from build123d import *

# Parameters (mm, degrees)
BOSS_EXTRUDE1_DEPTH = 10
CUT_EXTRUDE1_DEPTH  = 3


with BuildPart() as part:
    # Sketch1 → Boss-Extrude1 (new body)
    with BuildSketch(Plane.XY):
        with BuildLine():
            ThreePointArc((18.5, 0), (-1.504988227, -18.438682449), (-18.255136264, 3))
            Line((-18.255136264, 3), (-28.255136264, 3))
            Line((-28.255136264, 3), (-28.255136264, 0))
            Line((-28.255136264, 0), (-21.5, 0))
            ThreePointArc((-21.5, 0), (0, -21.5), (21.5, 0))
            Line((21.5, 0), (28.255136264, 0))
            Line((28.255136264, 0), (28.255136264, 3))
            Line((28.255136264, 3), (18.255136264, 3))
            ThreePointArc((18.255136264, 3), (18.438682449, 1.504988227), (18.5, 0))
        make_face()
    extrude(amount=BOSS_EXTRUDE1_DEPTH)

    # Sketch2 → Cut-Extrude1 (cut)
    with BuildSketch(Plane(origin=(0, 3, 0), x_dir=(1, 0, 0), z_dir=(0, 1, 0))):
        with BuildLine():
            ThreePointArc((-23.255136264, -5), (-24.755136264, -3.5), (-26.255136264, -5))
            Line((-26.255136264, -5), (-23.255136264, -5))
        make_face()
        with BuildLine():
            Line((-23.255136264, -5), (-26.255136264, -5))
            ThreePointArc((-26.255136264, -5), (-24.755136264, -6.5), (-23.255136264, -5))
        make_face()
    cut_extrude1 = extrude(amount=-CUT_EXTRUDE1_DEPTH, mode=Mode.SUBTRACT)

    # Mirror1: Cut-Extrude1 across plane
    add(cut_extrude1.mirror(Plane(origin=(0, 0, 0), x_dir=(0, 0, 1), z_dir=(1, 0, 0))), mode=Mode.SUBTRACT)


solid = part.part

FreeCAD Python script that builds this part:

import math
import FreeCAD as App
import Part
import Sketcher

V = App.Vector

doc = App.newDocument("Part")
body = doc.addObject("PartDesign::Body", "Body")

# Sketch on XY plane
sketch1 = body.newObject("Sketcher::SketchObject", "Sketch")
sketch1.AttachmentSupport = (doc.getObject("XY_Plane"), [""])
sketch1.MapMode = "FlatFace"
sketch1.addGeometry(Part.ArcOfCircle(Part.Circle(V(0, 0, 0), V(0, 0, 1), 18.5), math.radians(171), math.radians(360)), False)
sketch1.addGeometry(Part.LineSegment(V(-18.3, 3, 0), V(-28.3, 3, 0)), False)
sketch1.addGeometry(Part.LineSegment(V(-28.3, 3, 0), V(-28.3, 0, 0)), False)
sketch1.addGeometry(Part.LineSegment(V(-28.3, 0, 0), V(-21.5, 0, 0)), False)
sketch1.addGeometry(Part.ArcOfCircle(Part.Circle(V(0, 0, 0), V(0, 0, 1), 21.5), math.radians(180), math.radians(360)), False)
sketch1.addGeometry(Part.LineSegment(V(21.5, 0, 0), V(28.3, 0, 0)), False)
sketch1.addGeometry(Part.LineSegment(V(28.3, 0, 0), V(28.3, 3, 0)), False)
sketch1.addGeometry(Part.LineSegment(V(28.3, 3, 0), V(18.3, 3, 0)), False)
sketch1.addGeometry(Part.ArcOfCircle(Part.Circle(V(0, 0, 0), V(0, 0, 1), 18.5), math.radians(0), math.radians(9.33)), False)
sketch1.addConstraint(Sketcher.Constraint("Coincident", 0, 1, 1, 1))
sketch1.addConstraint(Sketcher.Constraint("Coincident", 1, 2, 2, 1))
sketch1.addConstraint(Sketcher.Constraint("Coincident", 2, 2, 3, 1))
sketch1.addConstraint(Sketcher.Constraint("Coincident", 3, 2, 4, 1))
sketch1.addConstraint(Sketcher.Constraint("Coincident", 4, 2, 5, 1))
sketch1.addConstraint(Sketcher.Constraint("Coincident", 5, 2, 6, 1))
sketch1.addConstraint(Sketcher.Constraint("Coincident", 6, 2, 7, 1))
sketch1.addConstraint(Sketcher.Constraint("Coincident", 7, 2, 8, 2))
sketch1.addConstraint(Sketcher.Constraint("Tangent", 8, 1, 0, 2))
sketch1.addConstraint(Sketcher.Constraint("Horizontal", 1))
sketch1.addConstraint(Sketcher.Constraint("Vertical", 2))
sketch1.addConstraint(Sketcher.Constraint("Horizontal", 3))
sketch1.addConstraint(Sketcher.Constraint("Horizontal", 5))
sketch1.addConstraint(Sketcher.Constraint("Vertical", 6))
sketch1.addConstraint(Sketcher.Constraint("Horizontal", 7))
sketch1.addConstraint(Sketcher.Constraint("Coincident", 0, 3, -1, 1))
sketch1.addConstraint(Sketcher.Constraint("Coincident", 4, 3, -1, 1))
sketch1.addConstraint(Sketcher.Constraint("Equal", 0, 8))
sketch1.addConstraint(Sketcher.Constraint("Symmetric", 2, 2, 5, 2, -1, 1))
sketch1.addConstraint(Sketcher.Constraint("PointOnObject", 2, 2, -1))
sketch1.addConstraint(Sketcher.Constraint("PointOnObject", 8, 1, -1))
sketch1.addConstraint(Sketcher.Constraint("Horizontal", 1, 2, 6, 2))
sketch1.addConstraint(Sketcher.Constraint("Radius", 0, 18.5))
sketch1.addConstraint(Sketcher.Constraint("Radius", 4, 21.5))
sketch1.addConstraint(Sketcher.Constraint("DistanceX", 1, 2, 1, 1, 10.0))
sketch1.addConstraint(Sketcher.Constraint("DistanceY", 2, 2, 2, 1, 3.0))
pad1 = body.newObject("PartDesign::Pad", "Pad")
pad1.Profile = sketch1
pad1.Length = 10

# Sketch on XZ plane
sketch2 = body.newObject("Sketcher::SketchObject", "Sketch001")
sketch2.AttachmentSupport = (doc.getObject("XZ_Plane"), [""])
sketch2.MapMode = "FlatFace"
sketch2.AttachmentOffset = App.Placement(V(0, 0, -3), App.Rotation())
sketch2.addGeometry(Part.Circle(V(-24.8, 5, 0), V(0, 0, 1), 1.5), False)
sketch2.addConstraint(Sketcher.Constraint("Diameter", 0, 3.0))
sketch2.addConstraint(Sketcher.Constraint("DistanceY", -1, 1, 0, 3, 5.0))
sketch2.addConstraint(Sketcher.Constraint("DistanceX", 0, 3, -1, 1, 24.755136))
pocket1 = body.newObject("PartDesign::Pocket", "Pocket")
pocket1.Profile = sketch2
pocket1.Length = 3
pocket1.Reversed = True
doc.recompute()

mirrored = body.newObject("PartDesign::Mirrored", "Mirrored")
mirrored.Originals = [pocket1]
mirrored.MirrorPlane = (doc.getObject("YZ_Plane"), [""])
body.Tip = mirrored

doc.recompute()
